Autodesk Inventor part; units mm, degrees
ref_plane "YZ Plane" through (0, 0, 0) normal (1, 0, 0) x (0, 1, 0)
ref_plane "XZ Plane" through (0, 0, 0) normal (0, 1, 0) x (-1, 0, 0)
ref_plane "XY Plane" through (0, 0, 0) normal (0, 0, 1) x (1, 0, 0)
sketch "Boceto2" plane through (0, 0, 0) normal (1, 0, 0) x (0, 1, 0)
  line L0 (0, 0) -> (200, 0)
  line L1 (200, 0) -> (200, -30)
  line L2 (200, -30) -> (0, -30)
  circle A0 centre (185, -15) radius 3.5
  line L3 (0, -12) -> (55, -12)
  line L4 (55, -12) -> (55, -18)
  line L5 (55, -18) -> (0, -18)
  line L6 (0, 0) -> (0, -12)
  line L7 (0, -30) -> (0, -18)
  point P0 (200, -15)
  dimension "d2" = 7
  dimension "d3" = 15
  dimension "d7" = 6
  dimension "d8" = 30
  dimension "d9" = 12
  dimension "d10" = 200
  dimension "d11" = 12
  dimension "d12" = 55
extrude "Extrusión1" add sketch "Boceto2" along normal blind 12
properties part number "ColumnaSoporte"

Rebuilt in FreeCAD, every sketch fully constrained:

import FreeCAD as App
import Part
import Sketcher
from FreeCAD import Vector

doc = App.newDocument("Part")
body = doc.addObject("PartDesign::Body", "Body")

# Sketch on YZ plane
sketch1 = body.newObject("Sketcher::SketchObject", "Sketch")
sketch1.AttachmentSupport = (doc.getObject("YZ_Plane"), [""])
sketch1.MapMode = "FlatFace"
sketch1.addGeometry(Part.LineSegment(Vector(200, 0, 0), Vector(0, 0, 0)), False)
sketch1.addGeometry(Part.LineSegment(Vector(0, 0, 0), Vector(0, -12, 0)), False)
sketch1.addGeometry(Part.LineSegment(Vector(0, -12, 0), Vector(55, -12, 0)), False)
sketch1.addGeometry(Part.LineSegment(Vector(55, -12, 0), Vector(55, -18, 0)), False)
sketch1.addGeometry(Part.LineSegment(Vector(55, -18, 0), Vector(0, -18, 0)), False)
sketch1.addGeometry(Part.LineSegment(Vector(0, -18, 0), Vector(0, -30, 0)), False)
sketch1.addGeometry(Part.LineSegment(Vector(0, -30, 0), Vector(200, -30, 0)), False)
sketch1.addGeometry(Part.LineSegment(Vector(200, -30, 0), Vector(200, 0, 0)), False)
sketch1.addGeometry(Part.Circle(Vector(185, -15, 0), Vector(0, 0, 1), 3.5), False)
sketch1.addConstraint(Sketcher.Constraint("Coincident", 0, 2, 1, 1))
sketch1.addConstraint(Sketcher.Constraint("Coincident", 1, 2, 2, 1))
sketch1.addConstraint(Sketcher.Constraint("Coincident", 2, 2, 3, 1))
sketch1.addConstraint(Sketcher.Constraint("Coincident", 3, 2, 4, 1))
sketch1.addConstraint(Sketcher.Constraint("Coincident", 4, 2, 5, 1))
sketch1.addConstraint(Sketcher.Constraint("Coincident", 5, 2, 6, 1))
sketch1.addConstraint(Sketcher.Constraint("Coincident", 6, 2, 7, 1))
sketch1.addConstraint(Sketcher.Constraint("Coincident", 7, 2, 0, 1))
sketch1.addConstraint(Sketcher.Constraint("Horizontal", 0))
sketch1.addConstraint(Sketcher.Constraint("Vertical", 1))
sketch1.addConstraint(Sketcher.Constraint("Horizontal", 2))
sketch1.addConstraint(Sketcher.Constraint("Vertical", 3))
sketch1.addConstraint(Sketcher.Constraint("Horizontal", 4))
sketch1.addConstraint(Sketcher.Constraint("Vertical", 5))
sketch1.addConstraint(Sketcher.Constraint("Horizontal", 6))
sketch1.addConstraint(Sketcher.Constraint("Vertical", 7))
sketch1.addConstraint(Sketcher.Constraint("Coincident", 0, 2, -1, 1))
sketch1.addConstraint(Sketcher.Constraint("PointOnObject", 4, 2, -2))
sketch1.addConstraint(Sketcher.Constraint("Equal", 1, 5))
sketch1.addConstraint(Sketcher.Constraint("Diameter", 8, 7.0))
sketch1.addConstraint(Sketcher.Constraint("DistanceX", 0, 2, 0, 1, 200.0))
sketch1.addConstraint(Sketcher.Constraint("DistanceX", 2, 1, 2, 2, 55.0))
sketch1.addConstraint(Sketcher.Constraint("DistanceY", 1, 2, 1, 1, 12.0))
sketch1.addConstraint(Sketcher.Constraint("DistanceY", 3, 2, 3, 1, 6.0))
sketch1.addConstraint(Sketcher.Constraint("DistanceY", 8, 3, -1, 1, 15.0))
sketch1.addConstraint(Sketcher.Constraint("DistanceX", 8, 3, 6, 2, 15.0))
pad1 = body.newObject("PartDesign::Pad", "Pad")
pad1.Profile = sketch1
pad1.Length = 12

doc.recompute()
